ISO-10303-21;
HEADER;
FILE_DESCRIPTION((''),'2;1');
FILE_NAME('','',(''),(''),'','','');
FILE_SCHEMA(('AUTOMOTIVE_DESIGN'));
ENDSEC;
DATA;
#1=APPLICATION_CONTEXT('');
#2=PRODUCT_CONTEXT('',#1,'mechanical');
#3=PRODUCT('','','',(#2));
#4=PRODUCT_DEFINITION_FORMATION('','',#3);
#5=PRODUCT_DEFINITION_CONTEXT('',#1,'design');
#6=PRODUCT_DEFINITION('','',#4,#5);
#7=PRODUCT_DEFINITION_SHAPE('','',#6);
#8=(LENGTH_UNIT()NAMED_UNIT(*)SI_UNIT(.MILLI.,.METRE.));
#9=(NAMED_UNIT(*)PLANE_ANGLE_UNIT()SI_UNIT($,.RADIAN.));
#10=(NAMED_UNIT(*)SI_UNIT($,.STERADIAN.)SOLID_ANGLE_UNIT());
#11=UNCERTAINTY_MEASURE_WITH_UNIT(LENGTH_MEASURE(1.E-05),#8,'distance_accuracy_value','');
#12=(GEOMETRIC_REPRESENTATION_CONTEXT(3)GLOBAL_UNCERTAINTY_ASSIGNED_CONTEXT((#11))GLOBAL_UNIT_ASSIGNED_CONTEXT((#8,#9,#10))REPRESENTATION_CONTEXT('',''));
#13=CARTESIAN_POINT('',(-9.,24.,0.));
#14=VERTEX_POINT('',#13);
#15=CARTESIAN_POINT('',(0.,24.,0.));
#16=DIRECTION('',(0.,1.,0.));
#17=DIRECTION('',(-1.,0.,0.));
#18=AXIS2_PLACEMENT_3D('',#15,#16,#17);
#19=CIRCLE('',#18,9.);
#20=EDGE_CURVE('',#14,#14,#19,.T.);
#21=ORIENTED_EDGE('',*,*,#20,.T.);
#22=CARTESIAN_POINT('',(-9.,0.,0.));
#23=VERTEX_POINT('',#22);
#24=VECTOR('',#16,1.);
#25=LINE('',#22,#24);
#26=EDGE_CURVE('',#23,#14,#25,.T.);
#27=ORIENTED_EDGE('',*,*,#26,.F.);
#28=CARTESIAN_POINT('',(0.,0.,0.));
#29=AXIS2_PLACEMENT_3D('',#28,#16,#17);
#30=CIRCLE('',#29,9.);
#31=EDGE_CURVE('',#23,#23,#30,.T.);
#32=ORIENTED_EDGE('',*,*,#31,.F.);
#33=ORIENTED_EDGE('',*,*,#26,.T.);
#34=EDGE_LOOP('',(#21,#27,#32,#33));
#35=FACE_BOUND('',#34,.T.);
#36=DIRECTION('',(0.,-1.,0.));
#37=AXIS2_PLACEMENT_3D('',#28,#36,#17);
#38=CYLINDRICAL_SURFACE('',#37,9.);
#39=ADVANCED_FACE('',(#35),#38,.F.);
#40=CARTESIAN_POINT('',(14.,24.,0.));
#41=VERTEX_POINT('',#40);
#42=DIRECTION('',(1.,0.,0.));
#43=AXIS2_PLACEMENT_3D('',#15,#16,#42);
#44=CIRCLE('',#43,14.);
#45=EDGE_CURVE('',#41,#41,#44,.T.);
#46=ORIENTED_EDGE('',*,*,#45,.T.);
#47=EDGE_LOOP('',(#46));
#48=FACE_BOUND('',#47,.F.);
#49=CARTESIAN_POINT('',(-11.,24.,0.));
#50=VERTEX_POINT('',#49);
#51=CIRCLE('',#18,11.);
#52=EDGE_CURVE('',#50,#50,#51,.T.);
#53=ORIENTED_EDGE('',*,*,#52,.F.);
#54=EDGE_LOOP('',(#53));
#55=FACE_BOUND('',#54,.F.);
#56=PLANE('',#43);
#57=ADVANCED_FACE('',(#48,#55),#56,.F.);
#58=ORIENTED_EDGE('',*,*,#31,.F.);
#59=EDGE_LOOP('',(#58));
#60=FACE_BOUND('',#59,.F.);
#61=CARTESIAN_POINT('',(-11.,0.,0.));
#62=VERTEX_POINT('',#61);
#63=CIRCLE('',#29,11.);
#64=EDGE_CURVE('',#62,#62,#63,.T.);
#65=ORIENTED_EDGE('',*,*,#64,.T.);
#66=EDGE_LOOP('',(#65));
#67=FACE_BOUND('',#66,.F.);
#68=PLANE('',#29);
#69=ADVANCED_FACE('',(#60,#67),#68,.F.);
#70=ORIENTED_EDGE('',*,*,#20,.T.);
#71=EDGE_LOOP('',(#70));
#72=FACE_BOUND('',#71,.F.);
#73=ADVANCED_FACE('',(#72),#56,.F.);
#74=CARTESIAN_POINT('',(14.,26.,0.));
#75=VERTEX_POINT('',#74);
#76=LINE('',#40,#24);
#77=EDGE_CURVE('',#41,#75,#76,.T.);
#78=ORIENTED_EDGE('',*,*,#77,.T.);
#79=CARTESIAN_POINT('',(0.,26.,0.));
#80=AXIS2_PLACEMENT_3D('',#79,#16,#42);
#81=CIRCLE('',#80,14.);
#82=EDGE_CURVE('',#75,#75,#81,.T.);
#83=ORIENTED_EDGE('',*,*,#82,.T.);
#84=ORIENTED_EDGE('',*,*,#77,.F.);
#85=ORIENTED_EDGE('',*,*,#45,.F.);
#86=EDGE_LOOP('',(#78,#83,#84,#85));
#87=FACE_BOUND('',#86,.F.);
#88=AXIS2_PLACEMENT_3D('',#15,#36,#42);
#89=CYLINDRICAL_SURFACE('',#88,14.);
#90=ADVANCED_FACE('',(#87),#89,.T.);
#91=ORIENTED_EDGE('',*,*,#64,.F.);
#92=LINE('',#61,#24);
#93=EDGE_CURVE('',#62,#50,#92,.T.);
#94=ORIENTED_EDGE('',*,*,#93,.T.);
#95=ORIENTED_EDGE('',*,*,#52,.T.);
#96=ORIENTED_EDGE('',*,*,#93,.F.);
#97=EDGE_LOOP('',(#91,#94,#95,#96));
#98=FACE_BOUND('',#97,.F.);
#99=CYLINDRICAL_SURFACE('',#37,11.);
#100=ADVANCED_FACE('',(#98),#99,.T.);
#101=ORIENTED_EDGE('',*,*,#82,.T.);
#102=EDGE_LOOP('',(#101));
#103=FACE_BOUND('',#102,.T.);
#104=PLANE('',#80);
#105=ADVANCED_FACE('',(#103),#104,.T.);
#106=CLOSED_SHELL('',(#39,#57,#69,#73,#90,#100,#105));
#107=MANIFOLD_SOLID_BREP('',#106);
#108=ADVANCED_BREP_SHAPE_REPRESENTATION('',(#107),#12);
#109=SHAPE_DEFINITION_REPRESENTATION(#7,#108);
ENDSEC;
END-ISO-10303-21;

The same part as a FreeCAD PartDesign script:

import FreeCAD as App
import Part
import Sketcher

doc = App.newDocument("Part")
params = doc.addObject("Spreadsheet::Sheet", "Params")
for row, (alias, value) in enumerate([
    ("sketch1_diameter", "22 mm"),
    ("sketch1_diameter2", "18 mm"),
    ("pad1_length", "24 mm"),
    ("sketch2_diameter", "28 mm"),
    ("pad2_length", "2 mm"),
], start=1):
    params.set(f"A{row}", alias)
    params.set(f"B{row}", "=" + value)
    params.setAlias(f"B{row}", alias)

body = doc.addObject("PartDesign::Body", "Body")

# Sketch on XZ plane
sketch1 = body.newObject("Sketcher::SketchObject", "Sketch")
sketch1.AttachmentSupport = (doc.getObject("XZ_Plane"), [""])
sketch1.MapMode = "FlatFace"
sketch1.addGeometry(Part.Circle(App.Vector(0, 0, 0), App.Vector(0, 0, 1), 11), False)
sketch1.addGeometry(Part.Circle(App.Vector(0, 0, 0), App.Vector(0, 0, 1), 9), False)
sketch1.addConstraint(Sketcher.Constraint("Coincident", 0, 3, -1, 1))
sketch1.addConstraint(Sketcher.Constraint("Coincident", 1, 3, -1, 1))
sketch1.addConstraint(Sketcher.Constraint("Diameter", 0, 22.0))
sketch1.addConstraint(Sketcher.Constraint("Diameter", 1, 18.0))
sketch1.setExpression("Constraints[2]", "Params.sketch1_diameter")
sketch1.setExpression("Constraints[3]", "Params.sketch1_diameter2")
pad1 = body.newObject("PartDesign::Pad", "Pad")
pad1.Profile = sketch1
pad1.setExpression("Length", "Params.pad1_length")
pad1.Reversed = True

# Sketch on XZ plane
sketch2 = body.newObject("Sketcher::SketchObject", "Sketch001")
sketch2.AttachmentSupport = (doc.getObject("XZ_Plane"), [""])
sketch2.MapMode = "FlatFace"
sketch2.AttachmentOffset = App.Placement(App.Vector(0, 0, -24), App.Rotation())
sketch2.addGeometry(Part.Circle(App.Vector(0, 0, 0), App.Vector(0, 0, 1), 14), False)
sketch2.addConstraint(Sketcher.Constraint("Coincident", 0, 3, -1, 1))
sketch2.addConstraint(Sketcher.Constraint("Diameter", 0, 28.0))
sketch2.setExpression("Constraints[1]", "Params.sketch2_diameter")
pad2 = body.newObject("PartDesign::Pad", "Pad001")
pad2.Profile = sketch2
pad2.setExpression("Length", "Params.pad2_length")
pad2.Reversed = True

doc.recompute()
